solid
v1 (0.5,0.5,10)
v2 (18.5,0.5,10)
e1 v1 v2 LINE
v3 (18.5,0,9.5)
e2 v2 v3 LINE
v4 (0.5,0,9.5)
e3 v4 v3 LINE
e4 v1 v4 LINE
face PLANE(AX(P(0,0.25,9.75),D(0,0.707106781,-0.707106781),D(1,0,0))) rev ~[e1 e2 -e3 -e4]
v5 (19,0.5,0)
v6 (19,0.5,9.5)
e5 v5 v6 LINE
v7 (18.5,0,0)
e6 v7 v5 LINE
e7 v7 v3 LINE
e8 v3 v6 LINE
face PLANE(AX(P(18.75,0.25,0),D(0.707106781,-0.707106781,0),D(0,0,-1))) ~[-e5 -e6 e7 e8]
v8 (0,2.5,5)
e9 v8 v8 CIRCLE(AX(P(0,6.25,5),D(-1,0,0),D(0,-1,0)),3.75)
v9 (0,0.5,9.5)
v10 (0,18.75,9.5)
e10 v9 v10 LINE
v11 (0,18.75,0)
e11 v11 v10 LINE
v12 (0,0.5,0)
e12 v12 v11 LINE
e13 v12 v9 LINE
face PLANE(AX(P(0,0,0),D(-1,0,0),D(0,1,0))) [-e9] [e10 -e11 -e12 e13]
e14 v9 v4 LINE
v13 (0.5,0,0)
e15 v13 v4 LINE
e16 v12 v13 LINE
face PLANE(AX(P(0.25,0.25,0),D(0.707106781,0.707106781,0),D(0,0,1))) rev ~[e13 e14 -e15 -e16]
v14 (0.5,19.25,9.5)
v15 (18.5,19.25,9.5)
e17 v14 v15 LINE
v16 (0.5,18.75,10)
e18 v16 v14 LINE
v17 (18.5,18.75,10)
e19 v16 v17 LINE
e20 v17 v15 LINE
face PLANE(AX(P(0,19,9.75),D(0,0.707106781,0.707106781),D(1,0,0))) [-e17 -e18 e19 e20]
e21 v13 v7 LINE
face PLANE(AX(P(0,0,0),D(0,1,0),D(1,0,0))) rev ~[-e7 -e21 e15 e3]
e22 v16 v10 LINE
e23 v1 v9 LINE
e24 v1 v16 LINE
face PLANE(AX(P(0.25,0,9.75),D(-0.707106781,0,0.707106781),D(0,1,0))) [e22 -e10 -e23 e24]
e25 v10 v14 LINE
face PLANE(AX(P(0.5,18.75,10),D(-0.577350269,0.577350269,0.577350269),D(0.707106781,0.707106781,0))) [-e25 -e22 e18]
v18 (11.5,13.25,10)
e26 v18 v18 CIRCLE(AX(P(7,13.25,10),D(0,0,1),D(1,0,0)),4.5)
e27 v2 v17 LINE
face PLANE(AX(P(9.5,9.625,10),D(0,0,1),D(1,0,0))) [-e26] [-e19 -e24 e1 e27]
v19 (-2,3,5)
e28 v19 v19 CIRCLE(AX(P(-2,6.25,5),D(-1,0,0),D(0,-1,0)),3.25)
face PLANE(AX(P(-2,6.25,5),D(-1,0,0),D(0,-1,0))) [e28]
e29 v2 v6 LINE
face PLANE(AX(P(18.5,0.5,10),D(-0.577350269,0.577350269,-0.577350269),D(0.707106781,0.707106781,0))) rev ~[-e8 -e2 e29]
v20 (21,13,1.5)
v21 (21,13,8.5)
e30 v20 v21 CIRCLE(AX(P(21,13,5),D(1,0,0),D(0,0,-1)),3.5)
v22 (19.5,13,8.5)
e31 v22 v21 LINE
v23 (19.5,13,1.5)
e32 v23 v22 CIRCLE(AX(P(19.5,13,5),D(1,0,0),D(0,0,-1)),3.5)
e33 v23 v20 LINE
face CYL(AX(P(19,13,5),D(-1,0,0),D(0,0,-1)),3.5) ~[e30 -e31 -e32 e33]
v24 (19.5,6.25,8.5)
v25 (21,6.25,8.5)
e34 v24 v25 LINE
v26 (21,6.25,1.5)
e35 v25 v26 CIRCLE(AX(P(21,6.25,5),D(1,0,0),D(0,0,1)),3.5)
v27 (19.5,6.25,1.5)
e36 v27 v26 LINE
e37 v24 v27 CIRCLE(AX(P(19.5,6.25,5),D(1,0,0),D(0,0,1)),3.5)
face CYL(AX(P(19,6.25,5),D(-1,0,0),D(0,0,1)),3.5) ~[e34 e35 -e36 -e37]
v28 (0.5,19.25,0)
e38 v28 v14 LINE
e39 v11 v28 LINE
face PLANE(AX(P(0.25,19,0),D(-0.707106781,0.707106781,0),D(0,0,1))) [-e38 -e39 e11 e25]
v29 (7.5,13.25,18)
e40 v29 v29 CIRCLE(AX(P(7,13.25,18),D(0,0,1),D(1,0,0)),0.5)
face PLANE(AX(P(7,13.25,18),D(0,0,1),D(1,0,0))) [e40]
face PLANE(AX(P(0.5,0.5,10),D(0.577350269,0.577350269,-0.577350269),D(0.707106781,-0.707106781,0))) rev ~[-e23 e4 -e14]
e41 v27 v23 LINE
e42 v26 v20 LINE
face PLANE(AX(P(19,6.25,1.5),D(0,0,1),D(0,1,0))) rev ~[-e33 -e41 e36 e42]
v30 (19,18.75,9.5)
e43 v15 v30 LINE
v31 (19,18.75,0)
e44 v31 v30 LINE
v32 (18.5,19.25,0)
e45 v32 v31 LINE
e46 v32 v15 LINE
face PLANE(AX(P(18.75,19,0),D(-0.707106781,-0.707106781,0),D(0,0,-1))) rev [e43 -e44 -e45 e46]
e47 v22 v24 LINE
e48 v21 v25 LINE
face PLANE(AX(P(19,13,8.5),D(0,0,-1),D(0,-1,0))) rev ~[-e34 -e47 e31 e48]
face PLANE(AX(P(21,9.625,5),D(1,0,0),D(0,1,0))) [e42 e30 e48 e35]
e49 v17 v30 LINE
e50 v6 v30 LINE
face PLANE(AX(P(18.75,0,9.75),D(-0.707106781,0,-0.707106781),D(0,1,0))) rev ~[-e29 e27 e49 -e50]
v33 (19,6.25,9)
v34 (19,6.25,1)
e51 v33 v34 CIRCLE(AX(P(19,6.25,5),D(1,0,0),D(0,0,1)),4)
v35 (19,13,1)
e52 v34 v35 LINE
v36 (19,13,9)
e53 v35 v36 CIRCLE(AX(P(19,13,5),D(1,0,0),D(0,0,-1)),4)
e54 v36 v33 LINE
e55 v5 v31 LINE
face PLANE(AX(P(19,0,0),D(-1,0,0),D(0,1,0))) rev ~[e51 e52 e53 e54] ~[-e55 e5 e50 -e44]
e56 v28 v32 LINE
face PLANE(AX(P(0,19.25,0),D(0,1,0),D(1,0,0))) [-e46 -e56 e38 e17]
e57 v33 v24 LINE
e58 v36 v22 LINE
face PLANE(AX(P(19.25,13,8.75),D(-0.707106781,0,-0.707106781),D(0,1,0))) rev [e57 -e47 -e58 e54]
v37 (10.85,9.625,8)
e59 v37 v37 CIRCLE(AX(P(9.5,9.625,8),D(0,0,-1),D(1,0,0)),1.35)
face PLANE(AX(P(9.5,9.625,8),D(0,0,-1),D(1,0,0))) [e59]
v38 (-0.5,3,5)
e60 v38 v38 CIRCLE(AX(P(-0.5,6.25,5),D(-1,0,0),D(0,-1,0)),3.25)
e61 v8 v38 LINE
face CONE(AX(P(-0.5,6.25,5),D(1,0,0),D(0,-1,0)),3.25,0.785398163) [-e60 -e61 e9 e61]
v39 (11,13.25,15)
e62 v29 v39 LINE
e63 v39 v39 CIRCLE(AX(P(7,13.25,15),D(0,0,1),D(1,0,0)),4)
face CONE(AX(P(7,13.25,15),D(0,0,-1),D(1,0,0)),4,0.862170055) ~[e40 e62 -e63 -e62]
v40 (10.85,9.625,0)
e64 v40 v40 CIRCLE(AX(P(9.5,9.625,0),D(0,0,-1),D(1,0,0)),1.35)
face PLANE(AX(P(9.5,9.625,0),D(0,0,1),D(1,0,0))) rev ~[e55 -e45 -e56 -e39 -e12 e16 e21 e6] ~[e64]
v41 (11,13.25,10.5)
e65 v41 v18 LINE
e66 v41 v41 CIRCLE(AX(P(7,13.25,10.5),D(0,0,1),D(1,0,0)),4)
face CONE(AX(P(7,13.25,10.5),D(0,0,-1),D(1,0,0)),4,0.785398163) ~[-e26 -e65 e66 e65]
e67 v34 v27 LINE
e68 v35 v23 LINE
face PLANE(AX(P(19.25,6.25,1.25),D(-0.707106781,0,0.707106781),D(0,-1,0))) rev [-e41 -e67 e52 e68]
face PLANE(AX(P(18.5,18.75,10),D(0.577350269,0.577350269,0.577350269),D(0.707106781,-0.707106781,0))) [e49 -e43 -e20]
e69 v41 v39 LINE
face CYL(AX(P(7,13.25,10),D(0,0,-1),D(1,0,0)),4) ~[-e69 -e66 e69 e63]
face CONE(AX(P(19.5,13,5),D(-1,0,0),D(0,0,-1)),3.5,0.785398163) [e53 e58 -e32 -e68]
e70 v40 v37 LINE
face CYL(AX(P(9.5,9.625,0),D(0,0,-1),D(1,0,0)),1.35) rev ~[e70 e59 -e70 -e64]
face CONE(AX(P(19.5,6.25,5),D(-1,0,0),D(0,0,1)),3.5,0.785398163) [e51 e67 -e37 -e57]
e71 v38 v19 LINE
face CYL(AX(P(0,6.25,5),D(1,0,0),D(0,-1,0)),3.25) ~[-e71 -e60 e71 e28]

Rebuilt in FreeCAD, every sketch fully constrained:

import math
import FreeCAD as App
import Part
import Sketcher
from FreeCAD import Vector


def edges_at(feature, points):
    """Names of the edges that pass closest to the given points."""
    edges = feature.Shape.Edges
    near = lambda p: min(range(len(edges)), key=lambda i: edges[i].distToShape(Part.Vertex(*p))[0])
    return sorted({f"Edge{near(p) + 1}" for p in points})


def add_polygon(sketch, points):
    """Adds a closed chain of lines whose ends are joined by coincident constraints."""
    first, n = sketch.GeometryCount, len(points)
    for a, b in zip(points, points[1:] + points[:1]):
        sketch.addGeometry(Part.LineSegment(App.Vector(*a, 0), App.Vector(*b, 0)), False)
    for i in range(n):
        sketch.addConstraint(Sketcher.Constraint("Coincident", first + i, 2, first + (i + 1) % n, 1))

doc = App.newDocument("Part")
body = doc.addObject("PartDesign::Body", "Body")

sketch1 = body.newObject("Sketcher::SketchObject", "Sketch")
sketch1.AttachmentSupport = (doc.getObject("XY_Plane"), [""])
sketch1.MapMode = "FlatFace"
add_polygon(sketch1, [(0, 19), (0, 0), (19, 0), (19, 19)])
sketch1.addConstraint(Sketcher.Constraint("Vertical", 0))
sketch1.addConstraint(Sketcher.Constraint("Horizontal", 1))
sketch1.addConstraint(Sketcher.Constraint("Vertical", 2))
sketch1.addConstraint(Sketcher.Constraint("Horizontal", 3))
sketch1.addConstraint(Sketcher.Constraint("Coincident", 0, 2, -1, 1))
sketch1.addConstraint(Sketcher.Constraint("DistanceX", 1, 1, 1, 2, 19.0))
sketch1.addConstraint(Sketcher.Constraint("DistanceY", 0, 2, 0, 1, 19.25))
pad1 = body.newObject("PartDesign::Pad", "Pad")
pad1.Profile = sketch1
pad1.Length = 10

sketch2 = body.newObject("Sketcher::SketchObject", "Sketch001")
sketch2.AttachmentSupport = (doc.getObject("XY_Plane"), [""])
sketch2.MapMode = "FlatFace"
sketch2.AttachmentOffset = App.Placement(Vector(0, 0, 10), App.Rotation())
sketch2.addGeometry(Part.Circle(Vector(7, 13.2, 0), Vector(0, 0, 1), 4), False)
sketch2.addConstraint(Sketcher.Constraint("Diameter", 0, 8.0))
sketch2.addConstraint(Sketcher.Constraint("DistanceX", -1, 1, 0, 3, 7.0))
sketch2.addConstraint(Sketcher.Constraint("DistanceY", -1, 1, 0, 3, 13.25))
pad2 = body.newObject("PartDesign::Pad", "Pad001")
pad2.Profile = sketch2
pad2.Length = 8
doc.recompute()

chamfer = body.newObject("PartDesign::Chamfer", "Chamfer")
chamfer.Base = (pad2, edges_at(pad2, [(3, 13.25, 18)]))
chamfer.ChamferType = "Two distances"
chamfer.Size = 3.5
chamfer.Size2 = 3
chamfer.FlipDirection = True

sketch3 = body.newObject("Sketcher::SketchObject", "Sketch002")
sketch3.AttachmentSupport = (doc.getObject("YZ_Plane"), [""])
sketch3.MapMode = "FlatFace"
sketch3.addGeometry(Part.Circle(Vector(6.2, 5, 0), Vector(0, 0, 1), 3.2), False)
sketch3.addConstraint(Sketcher.Constraint("Diameter", 0, 6.5))
sketch3.addConstraint(Sketcher.Constraint("DistanceY", -1, 1, 0, 3, 5.0))
sketch3.addConstraint(Sketcher.Constraint("DistanceX", -1, 1, 0, 3, 6.25))
pad3 = body.newObject("PartDesign::Pad", "Pad002")
pad3.Profile = sketch3
pad3.Length = 2
pad3.Reversed = True

sketch4 = body.newObject("Sketcher::SketchObject", "Sketch003")
sketch4.AttachmentSupport = (doc.getObject("YZ_Plane"), [""])
sketch4.MapMode = "FlatFace"
sketch4.AttachmentOffset = App.Placement(Vector(0, 0, 19), App.Rotation())
sketch4.addGeometry(Part.LineSegment(Vector(13, 8.5, 0), Vector(6.2, 8.5, 0)), False)
sketch4.addGeometry(Part.ArcOfCircle(Part.Circle(Vector(6.2, 5, 0), Vector(0, 0, 1), 3.5), math.radians(90), math.radians(270)), False)
sketch4.addGeometry(Part.LineSegment(Vector(6.2, 1.5, 0), Vector(13, 1.5, 0)), False)
sketch4.addGeometry(Part.ArcOfCircle(Part.Circle(Vector(13, 5, 0), Vector(0, 0, 1), 3.5), math.radians(-90), math.radians(90)), False)
sketch4.addConstraint(Sketcher.Constraint("Tangent", 0, 2, 1, 1))
sketch4.addConstraint(Sketcher.Constraint("Tangent", 1, 2, 2, 1))
sketch4.addConstraint(Sketcher.Constraint("Tangent", 2, 2, 3, 1))
sketch4.addConstraint(Sketcher.Constraint("Tangent", 3, 2, 0, 1))
sketch4.addConstraint(Sketcher.Constraint("Horizontal", 0))
sketch4.addConstraint(Sketcher.Constraint("Horizontal", 2))
sketch4.addConstraint(Sketcher.Constraint("Radius", 1, 3.5))
sketch4.addConstraint(Sketcher.Constraint("DistanceY", -1, 1, 1, 3, 5.0))
sketch4.addConstraint(Sketcher.Constraint("DistanceX", -1, 1, 3, 3, 13.0))
sketch4.addConstraint(Sketcher.Constraint("DistanceX", 0, 2, 0, 1, 6.75))
pad4 = body.newObject("PartDesign::Pad", "Pad003")
pad4.Profile = sketch4
pad4.Length = 2
doc.recompute()

chamfer2 = body.newObject("PartDesign::Chamfer", "Chamfer001")
chamfer2.Base = (pad4, edges_at(pad4, [
    (19, 19.25, 5),
    (0, 19.25, 5),
    (0, 0, 5),
    (19, 0, 5),
    (0, 9.625, 10),
    (9.5, 19.25, 10),
    (9.5, 0, 10),
    (19, 9.625, 10),
    (3, 13.25, 10),
    (0, 9.5, 5),
    (19, 9.625, 8.5),
]))
chamfer2.Size = 0.5

sketch5 = body.newObject("Sketcher::SketchObject", "Sketch004")
sketch5.AttachmentSupport = (doc.getObject("XY_Plane"), [""])
sketch5.MapMode = "FlatFace"
sketch5.addGeometry(Part.Circle(Vector(9.5, 9.6, 0), Vector(0, 0, 1), 1.4), False)
sketch5.addConstraint(Sketcher.Constraint("Diameter", 0, 2.7))
sketch5.addConstraint(Sketcher.Constraint("DistanceX", -1, 1, 0, 3, 9.5))
sketch5.addConstraint(Sketcher.Constraint("DistanceY", -1, 1, 0, 3, 9.625))
pocket1 = body.newObject("PartDesign::Pocket", "Pocket")
pocket1.Profile = sketch5
pocket1.Length = 8
pocket1.Reversed = True

doc.recompute()
